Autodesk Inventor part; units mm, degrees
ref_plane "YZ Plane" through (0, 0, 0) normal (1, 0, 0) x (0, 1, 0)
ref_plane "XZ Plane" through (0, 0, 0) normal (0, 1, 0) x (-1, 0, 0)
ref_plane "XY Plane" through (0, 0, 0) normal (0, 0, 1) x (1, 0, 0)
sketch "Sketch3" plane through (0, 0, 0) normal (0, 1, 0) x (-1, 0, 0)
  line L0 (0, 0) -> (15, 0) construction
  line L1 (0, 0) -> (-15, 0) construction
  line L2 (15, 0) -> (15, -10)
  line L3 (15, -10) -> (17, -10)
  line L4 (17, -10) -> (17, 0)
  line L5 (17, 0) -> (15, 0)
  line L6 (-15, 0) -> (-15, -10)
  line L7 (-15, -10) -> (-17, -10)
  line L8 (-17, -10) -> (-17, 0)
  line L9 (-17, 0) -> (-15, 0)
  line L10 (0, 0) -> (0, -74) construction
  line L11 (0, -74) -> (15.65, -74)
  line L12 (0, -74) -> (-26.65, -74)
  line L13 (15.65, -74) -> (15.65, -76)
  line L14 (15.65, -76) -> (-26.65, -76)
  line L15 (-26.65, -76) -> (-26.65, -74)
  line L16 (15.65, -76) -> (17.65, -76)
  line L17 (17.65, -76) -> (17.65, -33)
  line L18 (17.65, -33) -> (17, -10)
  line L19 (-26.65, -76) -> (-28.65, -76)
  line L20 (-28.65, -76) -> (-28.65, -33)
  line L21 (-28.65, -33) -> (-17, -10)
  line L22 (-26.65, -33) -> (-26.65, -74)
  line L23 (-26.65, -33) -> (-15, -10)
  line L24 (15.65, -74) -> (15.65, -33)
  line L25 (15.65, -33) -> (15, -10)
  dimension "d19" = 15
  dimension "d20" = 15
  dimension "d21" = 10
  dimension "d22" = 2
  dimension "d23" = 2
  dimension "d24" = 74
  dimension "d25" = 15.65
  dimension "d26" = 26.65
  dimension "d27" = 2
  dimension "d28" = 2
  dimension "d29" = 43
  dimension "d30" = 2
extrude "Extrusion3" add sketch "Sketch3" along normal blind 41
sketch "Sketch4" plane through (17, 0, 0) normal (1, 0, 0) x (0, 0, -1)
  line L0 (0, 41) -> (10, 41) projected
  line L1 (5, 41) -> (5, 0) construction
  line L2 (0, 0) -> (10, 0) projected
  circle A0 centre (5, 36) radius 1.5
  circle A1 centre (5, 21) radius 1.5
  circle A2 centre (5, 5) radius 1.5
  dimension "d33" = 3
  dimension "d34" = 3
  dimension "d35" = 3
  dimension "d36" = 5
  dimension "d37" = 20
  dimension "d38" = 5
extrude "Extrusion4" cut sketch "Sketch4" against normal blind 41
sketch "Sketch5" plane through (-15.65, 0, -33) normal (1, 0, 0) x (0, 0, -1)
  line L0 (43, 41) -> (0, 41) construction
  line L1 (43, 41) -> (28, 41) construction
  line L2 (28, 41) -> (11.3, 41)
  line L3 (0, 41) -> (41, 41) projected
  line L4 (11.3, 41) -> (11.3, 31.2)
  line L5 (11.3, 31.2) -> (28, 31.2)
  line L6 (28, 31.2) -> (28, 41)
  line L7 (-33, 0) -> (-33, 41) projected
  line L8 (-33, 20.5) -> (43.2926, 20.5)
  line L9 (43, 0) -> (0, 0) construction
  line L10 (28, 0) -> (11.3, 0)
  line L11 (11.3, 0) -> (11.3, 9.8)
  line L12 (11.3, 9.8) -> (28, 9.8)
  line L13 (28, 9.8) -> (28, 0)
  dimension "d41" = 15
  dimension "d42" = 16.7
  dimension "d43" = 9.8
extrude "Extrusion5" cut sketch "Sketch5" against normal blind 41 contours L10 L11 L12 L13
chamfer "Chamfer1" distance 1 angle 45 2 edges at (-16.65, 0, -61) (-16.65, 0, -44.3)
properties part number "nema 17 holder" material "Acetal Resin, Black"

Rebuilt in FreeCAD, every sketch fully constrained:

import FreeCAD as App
import Part
import Sketcher

V = App.Vector


def edges_at(feature, points):
    """Names of the edges that pass closest to the given points."""
    edges = feature.Shape.Edges
    near = lambda p: min(range(len(edges)), key=lambda i: edges[i].distToShape(Part.Vertex(*p))[0])
    return sorted({f"Edge{near(p) + 1}" for p in points})


def add_polygon(sketch, points):
    """Adds a closed chain of lines whose ends are joined by coincident constraints."""
    first, n = sketch.GeometryCount, len(points)
    for a, b in zip(points, points[1:] + points[:1]):
        sketch.addGeometry(Part.LineSegment(App.Vector(*a, 0), App.Vector(*b, 0)), False)
    for i in range(n):
        sketch.addConstraint(Sketcher.Constraint("Coincident", first + i, 2, first + (i + 1) % n, 1))

doc = App.newDocument("Part")
params = doc.addObject("Spreadsheet::Sheet", "Params")
for row, (alias, value) in enumerate([
    ("sketch1_width", "2 mm"),
    ("sketch1_height", "10 mm"),
    ("sketch1_height2", "43 mm"),
    ("pad1_length", "41 mm"),
    ("sketch2_diameter", "3 mm"),
    ("pocket1_length", "41 mm"),
    ("sketch3_width", "9.8 mm"),
    ("sketch3_height", "16.7 mm"),
    ("pocket2_length", "41 mm"),
    ("chamfer_size", "1 mm"),
], start=1):
    params.set(f"A{row}", alias)
    params.set(f"B{row}", "=" + value)
    params.setAlias(f"B{row}", alias)

body = doc.addObject("PartDesign::Body", "Body")

# Sketch on XZ plane
sketch1 = body.newObject("Sketcher::SketchObject", "Sketch")
sketch1.AttachmentSupport = (doc.getObject("XZ_Plane"), [""])
sketch1.MapMode = "FlatFace"
add_polygon(sketch1, [(-17, 0), (-15, 0), (-15, -10), (-15.7, -33), (-15.7, -74), (26.6, -74), (26.6, -33), (15, -10), (15, 0), (17, 0), (17, -10), (28.6, -33), (28.6, -76), (-17.6, -76), (-17.6, -33), (-17, -10)])  # lines 0-15
sketch1.addConstraint([
    Sketcher.Constraint("Horizontal", 0),
    Sketcher.Constraint("Vertical", 1),
    Sketcher.Constraint("Vertical", 3),
    Sketcher.Constraint("Horizontal", 4),
    Sketcher.Constraint("Vertical", 5),
    Sketcher.Constraint("Vertical", 7),
    Sketcher.Constraint("Horizontal", 8),
    Sketcher.Constraint("Vertical", 9),
    Sketcher.Constraint("Vertical", 11),
    Sketcher.Constraint("Horizontal", 12),
    Sketcher.Constraint("Vertical", 13),
    Sketcher.Constraint("Vertical", 15),
    Sketcher.Constraint("Symmetric", 0, 2, 7, 2, -1, 1),
    Sketcher.Constraint("Symmetric", 9, 2, 14, 2, -2),
    Sketcher.Constraint("PointOnObject", 0, 2, -1),
    Sketcher.Constraint("Parallel", 6, 10),
    Sketcher.Constraint("Parallel", 2, 14),
    Sketcher.Constraint("Horizontal", 2, 2, 5, 2),
    Sketcher.Constraint("Horizontal", 1, 2, 6, 2),
    Sketcher.Constraint("Horizontal", 6, 2, 9, 2),
    Sketcher.Constraint("Horizontal", 5, 2, 10, 2),
    Sketcher.Constraint("Horizontal", 10, 2, 13, 2),
    Sketcher.Constraint("DistanceX", 0, 1, 0, 2, 2.0),
    Sketcher.Constraint("DistanceY", 1, 2, 1, 1, 10.0),
    Sketcher.Constraint("DistanceY", 11, 2, 11, 1, 43.0),
    Sketcher.Constraint("DistanceX", 0, 2, -1, 1, 15.0),
    Sketcher.Constraint("DistanceY", 3, 2, -1, 1, 74.0),
    Sketcher.Constraint("DistanceY", 11, 2, 4, 2, 2.0),
    Sketcher.Constraint("DistanceX", 2, 2, -1, 1, 15.65),
    Sketcher.Constraint("DistanceX", -1, 1, 4, 2, 26.65),
])
sketch1.setExpression("Constraints[38]", "Params.sketch1_width")
sketch1.setExpression("Constraints[39]", "Params.sketch1_height")
sketch1.setExpression("Constraints[40]", "Params.sketch1_height2")
pad1 = body.newObject("PartDesign::Pad", "Pad")
pad1.Profile = sketch1
pad1.setExpression("Length", "Params.pad1_length")
pad1.Reversed = True

# Sketch on YZ plane
sketch2 = body.newObject("Sketcher::SketchObject", "Sketch001")
sketch2.AttachmentSupport = (doc.getObject("YZ_Plane"), [""])
sketch2.MapMode = "FlatFace"
sketch2.AttachmentOffset = App.Placement(V(0, 0, 17), App.Rotation())
sketch2.addGeometry([
    Part.Circle(V(36, -5, 0), V(0, 0, 1), 1.5),
    Part.Circle(V(21, -5, 0), V(0, 0, 1), 1.5),
    Part.Circle(V(5, -5, 0), V(0, 0, 1), 1.5),
], False)
sketch2.addConstraint([
    Sketcher.Constraint("Equal", 0, 1),
    Sketcher.Constraint("Equal", 1, 2),
    Sketcher.Constraint("Horizontal", 0, 3, 1, 3),
    Sketcher.Constraint("Horizontal", 1, 3, 2, 3),
    Sketcher.Constraint("Diameter", 0, 3.0),
    Sketcher.Constraint("DistanceY", 0, 3, -1, 1, 5.0),
    Sketcher.Constraint("DistanceX", -1, 1, 2, 3, 5.0),
    Sketcher.Constraint("DistanceX", -1, 1, 0, 3, 36.0),
    Sketcher.Constraint("DistanceX", -1, 1, 1, 3, 21.0),
])
sketch2.setExpression("Constraints[4]", "Params.sketch2_diameter")
pocket1 = body.newObject("PartDesign::Pocket", "Pocket")
pocket1.Profile = sketch2
pocket1.setExpression("Length", "Params.pocket1_length")

# Sketch on YZ plane
sketch3 = body.newObject("Sketcher::SketchObject", "Sketch002")
sketch3.AttachmentSupport = (doc.getObject("YZ_Plane"), [""])
sketch3.MapMode = "FlatFace"
sketch3.AttachmentOffset = App.Placement(V(0, 0, -15.65), App.Rotation())
add_polygon(sketch3, [(0, -44), (0, -61), (10, -61), (10, -44)])  # lines 0-3
sketch3.addConstraint([
    Sketcher.Constraint("Vertical", 0),
    Sketcher.Constraint("Horizontal", 1),
    Sketcher.Constraint("Vertical", 2),
    Sketcher.Constraint("Horizontal", 3),
    Sketcher.Constraint("PointOnObject", 0, 2, -2),
    Sketcher.Constraint("DistanceX", 1, 1, 1, 2, 9.8),
    Sketcher.Constraint("DistanceY", 0, 2, 0, 1, 16.7),
    Sketcher.Constraint("DistanceY", 0, 2, -1, 1, 61.0),
])
sketch3.setExpression("Constraints[9]", "Params.sketch3_width")
sketch3.setExpression("Constraints[10]", "Params.sketch3_height")
pocket2 = body.newObject("PartDesign::Pocket", "Pocket001")
pocket2.Profile = sketch3
pocket2.setExpression("Length", "Params.pocket2_length")
doc.recompute()

chamfer = body.newObject("PartDesign::Chamfer", "Chamfer")
chamfer.Base = (pocket2, edges_at(pocket2, [(-16.65, 0, -61), (-16.65, 0, -44.3)]))
chamfer.setExpression("Size", "Params.chamfer_size")

doc.recompute()
